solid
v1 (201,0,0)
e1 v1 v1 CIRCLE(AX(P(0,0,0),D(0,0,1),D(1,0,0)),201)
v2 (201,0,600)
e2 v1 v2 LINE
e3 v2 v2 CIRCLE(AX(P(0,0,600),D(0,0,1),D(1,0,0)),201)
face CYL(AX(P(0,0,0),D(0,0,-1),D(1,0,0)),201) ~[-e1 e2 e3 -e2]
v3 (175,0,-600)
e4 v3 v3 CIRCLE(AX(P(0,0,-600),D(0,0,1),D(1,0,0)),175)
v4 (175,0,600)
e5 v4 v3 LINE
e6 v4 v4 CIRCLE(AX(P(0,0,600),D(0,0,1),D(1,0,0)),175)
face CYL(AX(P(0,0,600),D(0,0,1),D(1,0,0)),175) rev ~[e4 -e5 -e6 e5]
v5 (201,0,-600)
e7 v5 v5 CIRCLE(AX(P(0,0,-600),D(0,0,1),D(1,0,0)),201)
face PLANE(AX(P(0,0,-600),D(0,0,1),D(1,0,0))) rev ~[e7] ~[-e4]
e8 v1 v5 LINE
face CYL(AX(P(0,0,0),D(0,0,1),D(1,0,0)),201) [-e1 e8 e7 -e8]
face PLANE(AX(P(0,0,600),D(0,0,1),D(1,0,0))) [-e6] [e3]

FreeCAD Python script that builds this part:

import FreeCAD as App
import Part
import Sketcher

V = App.Vector
Q = App.Units.Quantity

doc = App.newDocument("Part")
body = doc.addObject("PartDesign::Body", "Body")

# Sketch on XY plane
sketch1 = doc.addObject("Sketcher::SketchObject", "Sketch")
body.addObject(sketch1)
sketch1.AttachmentSupport = (doc.XY_Plane, [""])
sketch1.MapMode = "FlatFace"
sketch1.addGeometry(Part.Circle(V(0, 0, 0), V(0, 0, 1), 201), False)
sketch1.addConstraint(Sketcher.Constraint("Coincident", 0, 3, -1, 1))
sketch1.addConstraint(Sketcher.Constraint("Diameter", 0, Q("402 mm")))
pad1 = doc.addObject("PartDesign::Pad", "Pad")
body.addObject(pad1)
pad1.Profile = sketch1
pad1.Length = 1200
pad1.Midplane = True

# Sketch on XY plane
sketch2 = doc.addObject("Sketcher::SketchObject", "Sketch001")
body.addObject(sketch2)
sketch2.AttachmentSupport = (doc.XY_Plane, [""])
sketch2.MapMode = "FlatFace"
sketch2.AttachmentOffset = App.Placement(V(0, 0, 600), App.Rotation())
sketch2.addGeometry(Part.Circle(V(0, 0, 0), V(0, 0, 1), 175), False)
sketch2.addConstraint(Sketcher.Constraint("Coincident", 0, 3, -1, 1))
sketch2.addConstraint(Sketcher.Constraint("Diameter", 0, Q("350 mm")))
pocket1 = doc.addObject("PartDesign::Pocket", "Pocket")
body.addObject(pocket1)
pocket1.Profile = sketch2
pocket1.Type = "ThroughAll"

doc.recompute()
